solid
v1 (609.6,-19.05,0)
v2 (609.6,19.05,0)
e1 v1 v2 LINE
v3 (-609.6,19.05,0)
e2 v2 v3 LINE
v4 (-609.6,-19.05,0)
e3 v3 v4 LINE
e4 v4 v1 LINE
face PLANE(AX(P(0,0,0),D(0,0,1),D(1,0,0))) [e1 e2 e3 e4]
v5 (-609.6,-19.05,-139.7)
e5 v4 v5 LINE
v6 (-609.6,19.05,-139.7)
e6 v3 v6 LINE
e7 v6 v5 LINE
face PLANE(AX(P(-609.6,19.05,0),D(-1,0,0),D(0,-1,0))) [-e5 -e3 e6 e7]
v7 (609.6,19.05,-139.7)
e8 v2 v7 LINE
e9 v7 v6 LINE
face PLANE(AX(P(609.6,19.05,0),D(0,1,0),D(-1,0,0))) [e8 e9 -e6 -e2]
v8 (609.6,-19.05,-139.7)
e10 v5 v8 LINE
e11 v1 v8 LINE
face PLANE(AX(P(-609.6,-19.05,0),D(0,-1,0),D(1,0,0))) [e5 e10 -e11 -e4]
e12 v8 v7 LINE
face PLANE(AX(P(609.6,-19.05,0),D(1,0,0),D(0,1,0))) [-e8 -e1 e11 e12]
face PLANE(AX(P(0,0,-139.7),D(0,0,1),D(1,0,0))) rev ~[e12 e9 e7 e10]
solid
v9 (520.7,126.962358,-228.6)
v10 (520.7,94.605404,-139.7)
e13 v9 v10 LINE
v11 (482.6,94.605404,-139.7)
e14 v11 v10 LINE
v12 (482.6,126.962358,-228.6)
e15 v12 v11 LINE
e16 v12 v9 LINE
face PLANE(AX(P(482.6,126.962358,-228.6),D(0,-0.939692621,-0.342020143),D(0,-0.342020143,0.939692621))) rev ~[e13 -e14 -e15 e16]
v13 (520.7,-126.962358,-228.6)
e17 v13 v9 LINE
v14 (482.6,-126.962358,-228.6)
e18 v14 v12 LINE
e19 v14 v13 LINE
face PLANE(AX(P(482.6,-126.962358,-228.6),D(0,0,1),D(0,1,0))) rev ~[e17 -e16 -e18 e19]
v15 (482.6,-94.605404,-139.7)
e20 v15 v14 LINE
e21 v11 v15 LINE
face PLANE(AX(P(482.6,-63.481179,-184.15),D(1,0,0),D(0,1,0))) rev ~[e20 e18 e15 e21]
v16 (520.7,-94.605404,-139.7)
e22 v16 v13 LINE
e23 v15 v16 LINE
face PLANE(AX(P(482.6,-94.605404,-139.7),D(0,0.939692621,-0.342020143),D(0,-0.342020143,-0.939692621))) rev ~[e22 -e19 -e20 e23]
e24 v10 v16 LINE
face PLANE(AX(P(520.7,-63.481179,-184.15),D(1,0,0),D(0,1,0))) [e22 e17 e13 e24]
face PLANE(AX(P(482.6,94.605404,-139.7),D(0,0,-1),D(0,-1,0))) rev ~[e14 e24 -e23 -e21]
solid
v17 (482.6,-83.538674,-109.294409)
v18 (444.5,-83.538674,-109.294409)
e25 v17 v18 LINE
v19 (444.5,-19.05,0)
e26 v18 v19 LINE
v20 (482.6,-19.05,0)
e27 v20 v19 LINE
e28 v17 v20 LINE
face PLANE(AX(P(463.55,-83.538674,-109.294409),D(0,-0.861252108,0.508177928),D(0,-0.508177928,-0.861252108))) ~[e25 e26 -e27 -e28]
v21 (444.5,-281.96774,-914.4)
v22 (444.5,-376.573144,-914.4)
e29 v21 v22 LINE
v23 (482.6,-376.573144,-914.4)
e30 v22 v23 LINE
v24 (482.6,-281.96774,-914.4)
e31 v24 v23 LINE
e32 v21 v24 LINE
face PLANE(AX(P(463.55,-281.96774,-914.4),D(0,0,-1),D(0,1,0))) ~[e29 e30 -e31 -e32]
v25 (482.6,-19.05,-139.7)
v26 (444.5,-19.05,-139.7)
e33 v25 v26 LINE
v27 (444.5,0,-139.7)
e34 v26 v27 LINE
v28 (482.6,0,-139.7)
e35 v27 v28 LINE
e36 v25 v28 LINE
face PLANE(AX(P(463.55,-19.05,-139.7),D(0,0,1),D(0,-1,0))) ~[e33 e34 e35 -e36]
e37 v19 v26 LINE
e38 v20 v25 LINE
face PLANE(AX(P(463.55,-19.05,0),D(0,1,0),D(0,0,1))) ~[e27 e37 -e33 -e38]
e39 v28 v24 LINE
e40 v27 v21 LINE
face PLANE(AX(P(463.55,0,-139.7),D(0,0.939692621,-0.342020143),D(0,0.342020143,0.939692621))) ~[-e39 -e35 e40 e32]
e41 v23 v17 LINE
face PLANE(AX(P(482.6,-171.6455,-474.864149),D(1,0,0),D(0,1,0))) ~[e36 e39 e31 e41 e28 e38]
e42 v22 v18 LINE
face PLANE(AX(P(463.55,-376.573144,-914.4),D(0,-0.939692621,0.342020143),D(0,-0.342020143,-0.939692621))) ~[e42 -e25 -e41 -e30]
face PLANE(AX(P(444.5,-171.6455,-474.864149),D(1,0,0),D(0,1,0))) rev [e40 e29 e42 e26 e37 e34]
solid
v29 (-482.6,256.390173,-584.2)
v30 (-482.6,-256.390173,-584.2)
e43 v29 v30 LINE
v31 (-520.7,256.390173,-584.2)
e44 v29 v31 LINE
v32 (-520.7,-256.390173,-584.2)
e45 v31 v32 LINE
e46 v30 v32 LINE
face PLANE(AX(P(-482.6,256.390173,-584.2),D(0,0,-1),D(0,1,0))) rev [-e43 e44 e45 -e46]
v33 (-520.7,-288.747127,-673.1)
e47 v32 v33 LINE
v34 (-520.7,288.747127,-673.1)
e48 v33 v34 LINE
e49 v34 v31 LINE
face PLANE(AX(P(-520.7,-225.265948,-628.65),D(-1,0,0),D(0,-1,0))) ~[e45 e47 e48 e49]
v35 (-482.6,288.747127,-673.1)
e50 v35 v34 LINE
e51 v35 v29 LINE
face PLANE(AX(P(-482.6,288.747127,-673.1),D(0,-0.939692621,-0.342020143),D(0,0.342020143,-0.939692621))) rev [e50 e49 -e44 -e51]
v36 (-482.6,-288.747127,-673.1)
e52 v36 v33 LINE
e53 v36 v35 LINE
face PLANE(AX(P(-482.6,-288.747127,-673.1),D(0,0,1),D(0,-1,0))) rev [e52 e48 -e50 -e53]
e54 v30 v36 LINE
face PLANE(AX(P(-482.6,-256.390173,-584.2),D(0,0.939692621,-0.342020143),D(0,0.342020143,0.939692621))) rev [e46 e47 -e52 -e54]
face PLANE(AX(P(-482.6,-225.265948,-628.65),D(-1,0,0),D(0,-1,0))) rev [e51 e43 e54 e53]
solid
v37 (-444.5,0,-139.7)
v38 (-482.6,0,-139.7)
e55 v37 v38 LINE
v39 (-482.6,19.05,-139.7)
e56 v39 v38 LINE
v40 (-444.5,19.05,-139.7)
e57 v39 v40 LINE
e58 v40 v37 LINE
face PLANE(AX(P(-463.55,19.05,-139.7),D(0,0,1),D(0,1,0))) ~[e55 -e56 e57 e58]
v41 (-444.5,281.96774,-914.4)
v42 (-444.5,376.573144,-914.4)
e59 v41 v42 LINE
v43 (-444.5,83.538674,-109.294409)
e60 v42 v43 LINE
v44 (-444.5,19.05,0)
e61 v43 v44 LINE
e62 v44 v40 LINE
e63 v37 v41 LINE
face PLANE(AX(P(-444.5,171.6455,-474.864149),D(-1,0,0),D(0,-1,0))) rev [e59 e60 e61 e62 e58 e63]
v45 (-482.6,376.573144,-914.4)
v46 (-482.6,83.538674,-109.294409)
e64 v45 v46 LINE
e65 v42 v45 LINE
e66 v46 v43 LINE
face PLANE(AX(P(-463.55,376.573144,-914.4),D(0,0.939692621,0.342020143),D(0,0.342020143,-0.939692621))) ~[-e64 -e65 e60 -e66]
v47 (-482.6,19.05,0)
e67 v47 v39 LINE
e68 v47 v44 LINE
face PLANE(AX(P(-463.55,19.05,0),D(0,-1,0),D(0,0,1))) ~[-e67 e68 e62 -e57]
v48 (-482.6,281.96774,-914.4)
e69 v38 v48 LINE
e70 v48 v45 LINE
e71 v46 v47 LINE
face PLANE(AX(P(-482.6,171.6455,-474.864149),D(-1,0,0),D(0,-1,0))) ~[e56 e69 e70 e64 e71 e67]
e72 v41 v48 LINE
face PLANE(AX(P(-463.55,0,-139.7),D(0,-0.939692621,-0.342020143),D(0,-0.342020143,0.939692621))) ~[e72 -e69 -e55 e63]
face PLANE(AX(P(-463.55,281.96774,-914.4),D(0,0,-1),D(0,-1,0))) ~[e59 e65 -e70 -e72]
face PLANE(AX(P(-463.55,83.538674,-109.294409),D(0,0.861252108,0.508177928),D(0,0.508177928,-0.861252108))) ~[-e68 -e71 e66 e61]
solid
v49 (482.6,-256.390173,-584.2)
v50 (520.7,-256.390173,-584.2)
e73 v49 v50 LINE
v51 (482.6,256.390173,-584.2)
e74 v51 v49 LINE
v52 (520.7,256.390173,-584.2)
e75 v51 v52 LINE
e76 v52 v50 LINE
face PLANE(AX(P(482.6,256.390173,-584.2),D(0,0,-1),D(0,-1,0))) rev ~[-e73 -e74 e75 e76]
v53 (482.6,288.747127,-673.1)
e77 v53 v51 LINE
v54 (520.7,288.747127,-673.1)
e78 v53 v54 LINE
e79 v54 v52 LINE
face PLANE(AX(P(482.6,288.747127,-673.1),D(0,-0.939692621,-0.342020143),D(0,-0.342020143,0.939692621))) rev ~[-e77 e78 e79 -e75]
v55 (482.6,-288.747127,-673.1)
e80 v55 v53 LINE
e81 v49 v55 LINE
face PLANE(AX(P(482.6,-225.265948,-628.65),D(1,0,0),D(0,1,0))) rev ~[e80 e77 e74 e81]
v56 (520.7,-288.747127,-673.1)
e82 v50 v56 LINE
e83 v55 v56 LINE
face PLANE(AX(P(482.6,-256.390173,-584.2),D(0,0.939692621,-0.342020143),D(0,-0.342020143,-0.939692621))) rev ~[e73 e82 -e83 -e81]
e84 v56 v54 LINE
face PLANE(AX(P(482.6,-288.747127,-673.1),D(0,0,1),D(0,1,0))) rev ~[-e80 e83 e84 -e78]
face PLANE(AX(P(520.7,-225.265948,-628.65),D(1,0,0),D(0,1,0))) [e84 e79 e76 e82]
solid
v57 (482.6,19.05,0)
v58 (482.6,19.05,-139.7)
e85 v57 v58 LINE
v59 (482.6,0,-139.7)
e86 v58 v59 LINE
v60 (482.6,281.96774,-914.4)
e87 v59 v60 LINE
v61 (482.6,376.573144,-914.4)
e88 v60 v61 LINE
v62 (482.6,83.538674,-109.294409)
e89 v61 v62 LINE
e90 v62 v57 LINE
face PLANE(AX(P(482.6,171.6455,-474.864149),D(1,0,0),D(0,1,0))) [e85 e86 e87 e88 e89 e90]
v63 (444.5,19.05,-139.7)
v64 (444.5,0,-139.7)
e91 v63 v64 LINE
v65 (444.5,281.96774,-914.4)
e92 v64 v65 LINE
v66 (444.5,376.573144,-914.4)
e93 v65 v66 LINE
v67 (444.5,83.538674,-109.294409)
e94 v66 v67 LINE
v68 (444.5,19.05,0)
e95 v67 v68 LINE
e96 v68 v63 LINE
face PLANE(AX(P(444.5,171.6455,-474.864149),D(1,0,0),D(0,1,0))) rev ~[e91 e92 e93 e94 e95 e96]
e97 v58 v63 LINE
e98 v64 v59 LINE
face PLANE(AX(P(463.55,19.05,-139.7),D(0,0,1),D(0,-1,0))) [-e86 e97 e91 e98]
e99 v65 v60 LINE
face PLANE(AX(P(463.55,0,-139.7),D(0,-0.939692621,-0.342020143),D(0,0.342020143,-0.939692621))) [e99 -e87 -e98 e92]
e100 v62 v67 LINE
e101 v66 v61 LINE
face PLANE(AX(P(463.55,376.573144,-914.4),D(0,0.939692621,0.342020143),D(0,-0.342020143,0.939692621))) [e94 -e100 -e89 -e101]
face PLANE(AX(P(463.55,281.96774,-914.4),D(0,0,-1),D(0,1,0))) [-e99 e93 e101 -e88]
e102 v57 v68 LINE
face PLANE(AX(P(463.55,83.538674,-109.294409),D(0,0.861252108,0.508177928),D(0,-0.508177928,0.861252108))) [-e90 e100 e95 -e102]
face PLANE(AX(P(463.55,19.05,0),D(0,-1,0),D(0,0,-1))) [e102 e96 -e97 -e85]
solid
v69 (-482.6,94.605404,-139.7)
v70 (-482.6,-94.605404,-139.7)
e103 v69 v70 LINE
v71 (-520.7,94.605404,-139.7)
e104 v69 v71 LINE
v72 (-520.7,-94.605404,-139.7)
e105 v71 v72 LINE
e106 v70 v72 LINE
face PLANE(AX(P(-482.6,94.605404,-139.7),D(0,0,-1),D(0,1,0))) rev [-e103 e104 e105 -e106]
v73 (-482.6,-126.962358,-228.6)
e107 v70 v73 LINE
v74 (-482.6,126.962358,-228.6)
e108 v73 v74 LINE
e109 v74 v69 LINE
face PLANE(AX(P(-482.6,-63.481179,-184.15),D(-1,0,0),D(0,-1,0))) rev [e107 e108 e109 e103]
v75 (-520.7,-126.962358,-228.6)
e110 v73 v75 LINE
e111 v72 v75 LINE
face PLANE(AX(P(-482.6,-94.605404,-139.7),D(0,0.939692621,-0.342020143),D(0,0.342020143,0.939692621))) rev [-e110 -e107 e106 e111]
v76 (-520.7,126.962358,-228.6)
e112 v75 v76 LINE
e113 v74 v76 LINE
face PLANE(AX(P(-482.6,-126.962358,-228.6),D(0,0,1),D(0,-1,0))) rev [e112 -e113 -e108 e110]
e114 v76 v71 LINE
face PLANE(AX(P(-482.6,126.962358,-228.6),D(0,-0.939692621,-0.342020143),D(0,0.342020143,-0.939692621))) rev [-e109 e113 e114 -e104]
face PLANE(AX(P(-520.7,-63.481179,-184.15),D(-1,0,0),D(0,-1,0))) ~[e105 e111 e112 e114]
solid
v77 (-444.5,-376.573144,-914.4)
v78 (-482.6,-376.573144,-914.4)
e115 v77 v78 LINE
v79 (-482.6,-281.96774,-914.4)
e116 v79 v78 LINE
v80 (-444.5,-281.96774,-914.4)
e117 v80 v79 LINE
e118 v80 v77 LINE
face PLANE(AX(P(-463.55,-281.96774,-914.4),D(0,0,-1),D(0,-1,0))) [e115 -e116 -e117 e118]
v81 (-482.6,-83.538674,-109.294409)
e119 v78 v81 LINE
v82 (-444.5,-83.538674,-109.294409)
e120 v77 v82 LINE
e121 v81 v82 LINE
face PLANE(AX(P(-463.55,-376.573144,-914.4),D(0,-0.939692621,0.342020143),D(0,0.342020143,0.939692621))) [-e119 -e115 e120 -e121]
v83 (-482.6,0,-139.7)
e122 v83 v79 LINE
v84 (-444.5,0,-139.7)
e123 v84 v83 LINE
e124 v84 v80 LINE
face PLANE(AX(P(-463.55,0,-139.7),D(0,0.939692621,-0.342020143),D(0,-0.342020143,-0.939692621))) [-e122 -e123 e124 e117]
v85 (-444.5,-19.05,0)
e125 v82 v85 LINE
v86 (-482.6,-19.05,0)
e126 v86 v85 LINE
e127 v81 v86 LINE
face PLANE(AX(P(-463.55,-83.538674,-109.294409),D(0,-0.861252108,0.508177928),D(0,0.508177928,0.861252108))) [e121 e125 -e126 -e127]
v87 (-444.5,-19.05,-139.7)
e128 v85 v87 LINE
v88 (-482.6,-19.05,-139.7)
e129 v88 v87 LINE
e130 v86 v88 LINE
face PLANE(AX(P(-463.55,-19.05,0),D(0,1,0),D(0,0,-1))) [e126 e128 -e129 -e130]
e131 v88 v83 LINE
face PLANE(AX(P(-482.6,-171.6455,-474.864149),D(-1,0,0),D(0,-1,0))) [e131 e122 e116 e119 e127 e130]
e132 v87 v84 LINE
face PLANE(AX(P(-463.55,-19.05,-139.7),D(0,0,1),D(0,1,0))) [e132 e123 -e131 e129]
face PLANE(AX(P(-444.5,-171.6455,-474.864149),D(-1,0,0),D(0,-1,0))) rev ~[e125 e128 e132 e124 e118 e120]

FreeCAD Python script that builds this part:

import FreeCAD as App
import Part
import Sketcher
Q = App.Units.Quantity


def add_polygon(sketch, points):
    """Adds a closed chain of lines whose ends are joined by coincident constraints."""
    first, n = sketch.GeometryCount, len(points)
    for a, b in zip(points, points[1:] + points[:1]):
        sketch.addGeometry(Part.LineSegment(App.Vector(*a, 0), App.Vector(*b, 0)), False)
    for i in range(n):
        sketch.addConstraint(Sketcher.Constraint("Coincident", first + i, 2, first + (i + 1) % n, 1))

doc = App.newDocument("Part")
body = doc.addObject("PartDesign::Body", "Body")

# Sketch on XY plane
sketch1 = doc.addObject("Sketcher::SketchObject", "Sketch")
body.addObject(sketch1)
sketch1.AttachmentSupport = (doc.XY_Plane, [""])
sketch1.MapMode = "FlatFace"
add_polygon(sketch1, [(-610, -19), (610, -19), (610, 19), (-610, 19)])  # lines 0-3
sketch1.addConstraint([
    Sketcher.Constraint("Horizontal", 0),
    Sketcher.Constraint("Vertical", 1),
    Sketcher.Constraint("Horizontal", 2),
    Sketcher.Constraint("Vertical", 3),
    Sketcher.Constraint("Symmetric", 0, 2, 2, 2, -1, 1),
    Sketcher.Constraint("DistanceX", 0, 1, 0, 2, Q("48 in")),
    Sketcher.Constraint("DistanceY", 1, 1, 1, 2, Q("1.5 in")),
])
pad1 = doc.addObject("PartDesign::Pad", "Pad")
body.addObject(pad1)
pad1.Profile = sketch1
pad1.Length = Q("5.5 in")
pad1.Reversed = True
body2 = doc.addObject("PartDesign::Body", "Body001")

# Sketch on YZ plane
sketch2 = doc.addObject("Sketcher::SketchObject", "Sketch001")
body2.addObject(sketch2)
sketch2.AttachmentSupport = (doc.getObject("YZ_Plane001"), [""])
sketch2.MapMode = "FlatFace"
sketch2.AttachmentOffset = App.Placement(App.Vector(0, 0, -18.25 * 25.4), App.Rotation())
add_polygon(sketch2, [(-19, -140), (0, -140), (-282, -914), (-377, -914), (-84, -109), (-19, 0)])  # lines 0-5
sketch2.addConstraint([
    Sketcher.Constraint("Horizontal", 0),
    Sketcher.Constraint("Horizontal", 2),
    Sketcher.Constraint("Vertical", 5),
    Sketcher.Constraint("PointOnObject", 0, 2, -2),
    Sketcher.Constraint("PointOnObject", 4, 2, -1),
    Sketcher.Constraint("Parallel", 1, 3),
    Sketcher.Constraint("DistanceY", 5, 2, 5, 1, Q("5.5 in")),
    Sketcher.Constraint("DistanceY", 1, 2, -1, 1, Q("36 in")),
    Sketcher.Constraint("Angle", 1, Q("-110 deg")),
    Sketcher.Constraint("DistanceX", 0, 1, 0, 2, Q("0.75 in")),
    Sketcher.Constraint("Distance", 4, 126.901761),
    Sketcher.Constraint("DistanceX", 2, 2, 2, 1, 94.605404),
])
pad2 = doc.addObject("PartDesign::Pad", "Pad001")
body2.addObject(pad2)
pad2.Profile = sketch2
pad2.Length = Q("1.5 in")
pad2.Midplane = True
body3 = doc.addObject("PartDesign::Body", "Body002")
doc.recompute()

mirroring = doc.addObject("Part::Mirroring", "Mirroring")
mirroring.Source = body2
mirroring.Base = App.Vector(0, 0, 0)
mirroring.Normal = App.Vector(0, -1, 0)
body3.BaseFeature = mirroring
doc.recompute()
body4 = doc.addObject("PartDesign::Body", "Body003")
doc.recompute()

mirroring2 = doc.addObject("Part::Mirroring", "Mirroring001")
mirroring2.Source = body2
mirroring2.Base = App.Vector(0, 0, 0)
mirroring2.Normal = App.Vector(1, 0, 0)
body4.BaseFeature = mirroring2
doc.recompute()
body5 = doc.addObject("PartDesign::Body", "Body004")
doc.recompute()

mirroring3 = doc.addObject("Part::Mirroring", "Mirroring002")
mirroring3.Source = body3
mirroring3.Base = App.Vector(0, 0, 0)
mirroring3.Normal = App.Vector(1, 0, 0)
body5.BaseFeature = mirroring3
doc.recompute()
body6 = doc.addObject("PartDesign::Body", "Body005")

# Sketch on YZ plane
sketch3 = doc.addObject("Sketcher::SketchObject", "Sketch002")
body6.addObject(sketch3)
sketch3.AttachmentSupport = (doc.getObject("YZ_Plane005"), [""])
sketch3.MapMode = "FlatFace"
sketch3.AttachmentOffset = App.Placement(App.Vector(0, 0, 19 * 25.4), App.Rotation())
add_polygon(sketch3, [(-95, -140), (-127, -229), (127, -229), (95, -140)])  # lines 0-3
sketch3.addConstraint([
    Sketcher.Constraint("Horizontal", 1),
    Sketcher.Constraint("Horizontal", 3),
    Sketcher.Constraint("Equal", 0, 2),
    Sketcher.Constraint("DistanceY", 0, 2, -1, 1, Q("9 in")),
    Sketcher.Constraint("Angle", 0, Q("-110 deg")),
    Sketcher.Constraint("DistanceY", 2, 2, -1, 1, Q("5.5 in")),
    Sketcher.Constraint("DistanceX", 1, 1, 1, 2, 253.924716),
    Sketcher.Constraint("DistanceX", 0, 2, -1, 1, 126.962358),
])
pad3 = doc.addObject("PartDesign::Pad", "Pad002")
body6.addObject(pad3)
pad3.Profile = sketch3
pad3.Length = Q("1.5 in")
body7 = doc.addObject("PartDesign::Body", "Body006")

# Sketch on YZ plane
sketch4 = doc.addObject("Sketcher::SketchObject", "Sketch003")
body7.addObject(sketch4)
sketch4.AttachmentSupport = (doc.getObject("YZ_Plane006"), [""])
sketch4.MapMode = "FlatFace"
sketch4.AttachmentOffset = App.Placement(App.Vector(0, 0, 19 * 25.4), App.Rotation())
add_polygon(sketch4, [(-256, -584), (-289, -673), (289, -673), (256, -584)])  # lines 0-3
sketch4.addConstraint([
    Sketcher.Constraint("Horizontal", 1),
    Sketcher.Constraint("Horizontal", 3),
    Sketcher.Constraint("Equal", 0, 2),
    Sketcher.Constraint("DistanceY", 2, 2, -1, 1, Q("23 in")),
    Sketcher.Constraint("Angle", 0, Q("-110 deg")),
    Sketcher.Constraint("DistanceY", 0, 2, -1, 1, Q("26.5 in")),
    Sketcher.Constraint("DistanceX", 0, 2, 2, 2, 545.1373),
    Sketcher.Constraint("DistanceX", 0, 2, -1, 1, 288.747127),
])
pad4 = doc.addObject("PartDesign::Pad", "Pad003")
body7.addObject(pad4)
pad4.Profile = sketch4
pad4.Length = Q("1.5 in")
body8 = doc.addObject("PartDesign::Body", "Body007")
doc.recompute()

mirroring4 = doc.addObject("Part::Mirroring", "Mirroring003")
mirroring4.Source = body6
mirroring4.Base = App.Vector(0, 0, 0)
mirroring4.Normal = App.Vector(1, 0, 0)
body8.BaseFeature = mirroring4
doc.recompute()
body9 = doc.addObject("PartDesign::Body", "Body008")
doc.recompute()

mirroring5 = doc.addObject("Part::Mirroring", "Mirroring004")
mirroring5.Source = body7
mirroring5.Base = App.Vector(0, 0, 0)
mirroring5.Normal = App.Vector(1, 0, 0)
body9.BaseFeature = mirroring5
doc.recompute()
mirroring.Visibility = False
mirroring2.Visibility = False
mirroring3.Visibility = False
mirroring4.Visibility = False
mirroring5.Visibility = False

doc.recompute()
